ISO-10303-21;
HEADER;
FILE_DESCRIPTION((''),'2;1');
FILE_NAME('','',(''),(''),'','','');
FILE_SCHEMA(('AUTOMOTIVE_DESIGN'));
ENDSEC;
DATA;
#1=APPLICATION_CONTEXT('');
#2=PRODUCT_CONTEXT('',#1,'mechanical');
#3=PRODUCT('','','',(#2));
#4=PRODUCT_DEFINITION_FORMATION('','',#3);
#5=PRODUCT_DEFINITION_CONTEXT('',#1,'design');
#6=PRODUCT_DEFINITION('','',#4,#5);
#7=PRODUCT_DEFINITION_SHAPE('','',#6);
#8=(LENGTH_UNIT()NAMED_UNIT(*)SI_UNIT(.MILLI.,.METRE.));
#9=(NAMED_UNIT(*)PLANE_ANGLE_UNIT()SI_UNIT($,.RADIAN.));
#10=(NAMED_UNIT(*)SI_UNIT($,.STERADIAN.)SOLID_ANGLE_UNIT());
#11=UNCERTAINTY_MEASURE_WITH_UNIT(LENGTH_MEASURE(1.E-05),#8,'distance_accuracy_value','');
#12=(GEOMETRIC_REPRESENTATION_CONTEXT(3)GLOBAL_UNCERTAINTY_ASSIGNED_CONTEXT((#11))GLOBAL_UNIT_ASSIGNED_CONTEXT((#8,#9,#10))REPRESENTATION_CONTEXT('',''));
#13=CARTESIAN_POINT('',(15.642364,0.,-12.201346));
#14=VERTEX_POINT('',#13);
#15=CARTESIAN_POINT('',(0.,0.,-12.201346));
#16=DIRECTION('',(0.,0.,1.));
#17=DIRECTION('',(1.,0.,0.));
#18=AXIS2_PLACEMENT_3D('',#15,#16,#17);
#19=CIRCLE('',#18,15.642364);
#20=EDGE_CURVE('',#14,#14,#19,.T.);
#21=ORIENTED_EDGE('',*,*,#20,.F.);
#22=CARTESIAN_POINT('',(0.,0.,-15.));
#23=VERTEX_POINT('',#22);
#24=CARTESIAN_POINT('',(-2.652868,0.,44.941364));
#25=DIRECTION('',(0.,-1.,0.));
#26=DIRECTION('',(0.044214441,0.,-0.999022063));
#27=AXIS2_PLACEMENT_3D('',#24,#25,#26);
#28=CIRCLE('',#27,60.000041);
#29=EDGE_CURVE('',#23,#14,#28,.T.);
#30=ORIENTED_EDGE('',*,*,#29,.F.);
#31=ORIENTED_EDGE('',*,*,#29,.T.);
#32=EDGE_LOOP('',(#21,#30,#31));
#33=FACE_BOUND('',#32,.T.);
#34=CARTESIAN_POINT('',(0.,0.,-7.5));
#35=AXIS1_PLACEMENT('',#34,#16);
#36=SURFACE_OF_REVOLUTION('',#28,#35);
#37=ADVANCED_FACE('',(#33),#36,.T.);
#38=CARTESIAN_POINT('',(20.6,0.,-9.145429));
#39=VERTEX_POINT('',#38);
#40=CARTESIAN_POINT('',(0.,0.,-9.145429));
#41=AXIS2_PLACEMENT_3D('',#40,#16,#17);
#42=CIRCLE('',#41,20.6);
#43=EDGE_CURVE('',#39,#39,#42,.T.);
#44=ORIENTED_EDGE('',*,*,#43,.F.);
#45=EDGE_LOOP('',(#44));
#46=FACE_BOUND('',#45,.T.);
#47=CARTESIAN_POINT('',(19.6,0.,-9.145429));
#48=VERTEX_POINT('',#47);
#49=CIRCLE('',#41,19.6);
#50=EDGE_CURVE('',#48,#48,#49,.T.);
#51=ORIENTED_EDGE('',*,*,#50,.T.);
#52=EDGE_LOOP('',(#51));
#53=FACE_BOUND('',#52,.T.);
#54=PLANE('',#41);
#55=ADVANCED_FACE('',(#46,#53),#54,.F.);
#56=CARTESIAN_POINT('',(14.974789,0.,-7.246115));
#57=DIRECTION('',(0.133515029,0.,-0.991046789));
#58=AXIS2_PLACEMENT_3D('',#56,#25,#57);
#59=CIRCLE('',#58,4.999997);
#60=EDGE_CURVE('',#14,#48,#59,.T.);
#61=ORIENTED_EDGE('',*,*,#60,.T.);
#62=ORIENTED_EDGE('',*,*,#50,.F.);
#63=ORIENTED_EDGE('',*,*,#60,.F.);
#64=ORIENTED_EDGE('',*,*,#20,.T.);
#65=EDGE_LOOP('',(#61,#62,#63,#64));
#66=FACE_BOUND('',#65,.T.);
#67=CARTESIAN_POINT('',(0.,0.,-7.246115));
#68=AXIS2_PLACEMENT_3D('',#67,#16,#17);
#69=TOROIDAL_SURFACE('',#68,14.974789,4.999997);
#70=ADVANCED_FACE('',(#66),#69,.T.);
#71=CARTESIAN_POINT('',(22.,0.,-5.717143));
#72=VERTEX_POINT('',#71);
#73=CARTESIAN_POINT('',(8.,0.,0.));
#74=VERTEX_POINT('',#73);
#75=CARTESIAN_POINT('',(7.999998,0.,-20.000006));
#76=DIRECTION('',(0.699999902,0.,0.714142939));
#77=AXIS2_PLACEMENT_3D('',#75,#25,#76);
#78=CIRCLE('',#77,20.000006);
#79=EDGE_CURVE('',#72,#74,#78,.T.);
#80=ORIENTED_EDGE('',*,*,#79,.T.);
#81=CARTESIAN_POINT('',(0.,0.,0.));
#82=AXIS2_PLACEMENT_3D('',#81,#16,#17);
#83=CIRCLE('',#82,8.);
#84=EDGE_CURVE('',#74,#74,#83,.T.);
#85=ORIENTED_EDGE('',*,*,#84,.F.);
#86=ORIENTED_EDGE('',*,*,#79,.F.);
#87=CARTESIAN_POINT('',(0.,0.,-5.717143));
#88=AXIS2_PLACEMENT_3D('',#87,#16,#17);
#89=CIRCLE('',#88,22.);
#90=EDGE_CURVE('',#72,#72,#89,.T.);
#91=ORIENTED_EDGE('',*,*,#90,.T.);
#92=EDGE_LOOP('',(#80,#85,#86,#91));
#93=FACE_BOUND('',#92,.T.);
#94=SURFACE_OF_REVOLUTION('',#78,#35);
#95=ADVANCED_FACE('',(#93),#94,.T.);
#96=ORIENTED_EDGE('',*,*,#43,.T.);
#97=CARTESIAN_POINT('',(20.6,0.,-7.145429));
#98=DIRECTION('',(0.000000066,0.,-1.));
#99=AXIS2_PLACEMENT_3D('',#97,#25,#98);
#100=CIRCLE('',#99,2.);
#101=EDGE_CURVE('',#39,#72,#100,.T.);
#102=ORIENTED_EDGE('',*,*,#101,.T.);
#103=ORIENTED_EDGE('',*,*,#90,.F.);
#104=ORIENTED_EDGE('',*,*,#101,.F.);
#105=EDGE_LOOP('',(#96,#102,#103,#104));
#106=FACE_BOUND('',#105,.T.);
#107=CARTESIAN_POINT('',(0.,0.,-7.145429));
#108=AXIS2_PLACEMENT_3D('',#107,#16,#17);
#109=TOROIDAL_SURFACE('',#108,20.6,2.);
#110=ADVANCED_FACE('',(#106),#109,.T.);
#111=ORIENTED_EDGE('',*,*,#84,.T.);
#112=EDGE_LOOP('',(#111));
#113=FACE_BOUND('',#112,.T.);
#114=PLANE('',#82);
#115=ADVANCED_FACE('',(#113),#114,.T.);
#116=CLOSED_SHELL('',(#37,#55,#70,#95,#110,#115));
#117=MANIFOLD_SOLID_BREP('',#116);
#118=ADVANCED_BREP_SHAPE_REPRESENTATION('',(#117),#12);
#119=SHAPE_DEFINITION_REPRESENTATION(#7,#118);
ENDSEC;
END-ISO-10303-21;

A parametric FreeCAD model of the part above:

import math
import FreeCAD as App
import Part
import Sketcher

V = App.Vector
Q = App.Units.Quantity

doc = App.newDocument("Part")
params = doc.addObject("Spreadsheet::Sheet", "Params")
for row, (alias, value) in enumerate([
    ("sketch1_radius", "2 mm"),
    ("sketch1_width", "8 mm"),
    ("sketch1_width2", "1 mm"),
    ("sketch1_height", "15 mm"),
    ("revolution_angle", "360 deg"),
], start=1):
    params.set(f"A{row}", alias)
    params.set(f"B{row}", "=" + value)
    params.setAlias(f"B{row}", alias)

body = doc.addObject("PartDesign::Body", "Body")

sketch1 = body.newObject("Sketcher::SketchObject", "Sketch")
sketch1.AttachmentSupport = (doc.getObject("XZ_Plane"), [""])
sketch1.MapMode = "FlatFace"
sketch1.addGeometry(Part.LineSegment(V(8, 0, 0), V(0, 0, 0)), False)
sketch1.addGeometry(Part.LineSegment(V(0, 0, 0), V(0, -15, 0)), False)
sketch1.addGeometry(Part.ArcOfCircle(Part.Circle(V(-2.652868, 44.941364, 0), V(0, 0, 1), 60.000041), math.radians(-87.465873), math.radians(-72.246629)), False)
sketch1.addGeometry(Part.ArcOfCircle(Part.Circle(V(14.974789, -7.246115, 0), V(0, 0, 1), 4.999997), math.radians(-82.32724), math.radians(-22.325195)), False)
sketch1.addGeometry(Part.LineSegment(V(19.6, -9.145429, 0), V(20.6, -9.145429, 0)), False)
sketch1.addGeometry(Part.ArcOfCircle(Part.Circle(V(20.6, -7.145429, 0), V(0, 0, 1), 2), math.radians(-89.999996), math.radians(45.572996)), False)
sketch1.addGeometry(Part.ArcOfCircle(Part.Circle(V(7.999998, -20.000006, 0), V(0, 0, 1), 20.000006), math.radians(45.573004), math.radians(89.999993)), False)
sketch1.addConstraint(Sketcher.Constraint("Coincident", 0, 2, 1, 1))
sketch1.addConstraint(Sketcher.Constraint("Coincident", 1, 2, 2, 1))
sketch1.addConstraint(Sketcher.Constraint("Coincident", 2, 2, 3, 1))
sketch1.addConstraint(Sketcher.Constraint("Coincident", 3, 2, 4, 1))
sketch1.addConstraint(Sketcher.Constraint("Tangent", 4, 2, 5, 1))
sketch1.addConstraint(Sketcher.Constraint("Tangent", 5, 2, 6, 1))
sketch1.addConstraint(Sketcher.Constraint("Tangent", 6, 2, 0, 1))
sketch1.addConstraint(Sketcher.Constraint("Horizontal", 0))
sketch1.addConstraint(Sketcher.Constraint("Vertical", 1))
sketch1.addConstraint(Sketcher.Constraint("Horizontal", 4))
sketch1.addConstraint(Sketcher.Constraint("Coincident", 0, 2, -1, 1))
sketch1.addConstraint(Sketcher.Constraint("Radius", 5, Q("2 mm")))
sketch1.addConstraint(Sketcher.Constraint("DistanceX", 0, 2, 0, 1, Q("8 mm")))
sketch1.addConstraint(Sketcher.Constraint("DistanceX", 4, 1, 4, 2, Q("1 mm")))
sketch1.addConstraint(Sketcher.Constraint("DistanceY", 1, 2, 1, 1, Q("15 mm")))
sketch1.addConstraint(Sketcher.Constraint("DistanceX", -1, 1, 5, 2, Q("22 mm")))
sketch1.addConstraint(Sketcher.Constraint("DistanceX", -1, 1, 5, 3, Q("20.6 mm")))
sketch1.addConstraint(Sketcher.Constraint("Radius", 2, Q("60.000041 mm")))
sketch1.addConstraint(Sketcher.Constraint("Radius", 3, Q("4.999997 mm")))
sketch1.addConstraint(Sketcher.Constraint("DistanceX", 2, 3, -1, 1, Q("2.652868 mm")))
sketch1.addConstraint(Sketcher.Constraint("DistanceX", -1, 1, 3, 3, Q("14.974789 mm")))
sketch1.setExpression("Constraints[11]", "Params.sketch1_radius")
sketch1.setExpression("Constraints[12]", "Params.sketch1_width")
sketch1.setExpression("Constraints[13]", "Params.sketch1_width2")
sketch1.setExpression("Constraints[14]", "Params.sketch1_height")
revolution = body.newObject("PartDesign::Revolution", "Revolution")
revolution.Profile = sketch1
revolution.ReferenceAxis = (sketch1, ["V_Axis"])
revolution.setExpression("Angle", "Params.revolution_angle")

doc.recompute()
